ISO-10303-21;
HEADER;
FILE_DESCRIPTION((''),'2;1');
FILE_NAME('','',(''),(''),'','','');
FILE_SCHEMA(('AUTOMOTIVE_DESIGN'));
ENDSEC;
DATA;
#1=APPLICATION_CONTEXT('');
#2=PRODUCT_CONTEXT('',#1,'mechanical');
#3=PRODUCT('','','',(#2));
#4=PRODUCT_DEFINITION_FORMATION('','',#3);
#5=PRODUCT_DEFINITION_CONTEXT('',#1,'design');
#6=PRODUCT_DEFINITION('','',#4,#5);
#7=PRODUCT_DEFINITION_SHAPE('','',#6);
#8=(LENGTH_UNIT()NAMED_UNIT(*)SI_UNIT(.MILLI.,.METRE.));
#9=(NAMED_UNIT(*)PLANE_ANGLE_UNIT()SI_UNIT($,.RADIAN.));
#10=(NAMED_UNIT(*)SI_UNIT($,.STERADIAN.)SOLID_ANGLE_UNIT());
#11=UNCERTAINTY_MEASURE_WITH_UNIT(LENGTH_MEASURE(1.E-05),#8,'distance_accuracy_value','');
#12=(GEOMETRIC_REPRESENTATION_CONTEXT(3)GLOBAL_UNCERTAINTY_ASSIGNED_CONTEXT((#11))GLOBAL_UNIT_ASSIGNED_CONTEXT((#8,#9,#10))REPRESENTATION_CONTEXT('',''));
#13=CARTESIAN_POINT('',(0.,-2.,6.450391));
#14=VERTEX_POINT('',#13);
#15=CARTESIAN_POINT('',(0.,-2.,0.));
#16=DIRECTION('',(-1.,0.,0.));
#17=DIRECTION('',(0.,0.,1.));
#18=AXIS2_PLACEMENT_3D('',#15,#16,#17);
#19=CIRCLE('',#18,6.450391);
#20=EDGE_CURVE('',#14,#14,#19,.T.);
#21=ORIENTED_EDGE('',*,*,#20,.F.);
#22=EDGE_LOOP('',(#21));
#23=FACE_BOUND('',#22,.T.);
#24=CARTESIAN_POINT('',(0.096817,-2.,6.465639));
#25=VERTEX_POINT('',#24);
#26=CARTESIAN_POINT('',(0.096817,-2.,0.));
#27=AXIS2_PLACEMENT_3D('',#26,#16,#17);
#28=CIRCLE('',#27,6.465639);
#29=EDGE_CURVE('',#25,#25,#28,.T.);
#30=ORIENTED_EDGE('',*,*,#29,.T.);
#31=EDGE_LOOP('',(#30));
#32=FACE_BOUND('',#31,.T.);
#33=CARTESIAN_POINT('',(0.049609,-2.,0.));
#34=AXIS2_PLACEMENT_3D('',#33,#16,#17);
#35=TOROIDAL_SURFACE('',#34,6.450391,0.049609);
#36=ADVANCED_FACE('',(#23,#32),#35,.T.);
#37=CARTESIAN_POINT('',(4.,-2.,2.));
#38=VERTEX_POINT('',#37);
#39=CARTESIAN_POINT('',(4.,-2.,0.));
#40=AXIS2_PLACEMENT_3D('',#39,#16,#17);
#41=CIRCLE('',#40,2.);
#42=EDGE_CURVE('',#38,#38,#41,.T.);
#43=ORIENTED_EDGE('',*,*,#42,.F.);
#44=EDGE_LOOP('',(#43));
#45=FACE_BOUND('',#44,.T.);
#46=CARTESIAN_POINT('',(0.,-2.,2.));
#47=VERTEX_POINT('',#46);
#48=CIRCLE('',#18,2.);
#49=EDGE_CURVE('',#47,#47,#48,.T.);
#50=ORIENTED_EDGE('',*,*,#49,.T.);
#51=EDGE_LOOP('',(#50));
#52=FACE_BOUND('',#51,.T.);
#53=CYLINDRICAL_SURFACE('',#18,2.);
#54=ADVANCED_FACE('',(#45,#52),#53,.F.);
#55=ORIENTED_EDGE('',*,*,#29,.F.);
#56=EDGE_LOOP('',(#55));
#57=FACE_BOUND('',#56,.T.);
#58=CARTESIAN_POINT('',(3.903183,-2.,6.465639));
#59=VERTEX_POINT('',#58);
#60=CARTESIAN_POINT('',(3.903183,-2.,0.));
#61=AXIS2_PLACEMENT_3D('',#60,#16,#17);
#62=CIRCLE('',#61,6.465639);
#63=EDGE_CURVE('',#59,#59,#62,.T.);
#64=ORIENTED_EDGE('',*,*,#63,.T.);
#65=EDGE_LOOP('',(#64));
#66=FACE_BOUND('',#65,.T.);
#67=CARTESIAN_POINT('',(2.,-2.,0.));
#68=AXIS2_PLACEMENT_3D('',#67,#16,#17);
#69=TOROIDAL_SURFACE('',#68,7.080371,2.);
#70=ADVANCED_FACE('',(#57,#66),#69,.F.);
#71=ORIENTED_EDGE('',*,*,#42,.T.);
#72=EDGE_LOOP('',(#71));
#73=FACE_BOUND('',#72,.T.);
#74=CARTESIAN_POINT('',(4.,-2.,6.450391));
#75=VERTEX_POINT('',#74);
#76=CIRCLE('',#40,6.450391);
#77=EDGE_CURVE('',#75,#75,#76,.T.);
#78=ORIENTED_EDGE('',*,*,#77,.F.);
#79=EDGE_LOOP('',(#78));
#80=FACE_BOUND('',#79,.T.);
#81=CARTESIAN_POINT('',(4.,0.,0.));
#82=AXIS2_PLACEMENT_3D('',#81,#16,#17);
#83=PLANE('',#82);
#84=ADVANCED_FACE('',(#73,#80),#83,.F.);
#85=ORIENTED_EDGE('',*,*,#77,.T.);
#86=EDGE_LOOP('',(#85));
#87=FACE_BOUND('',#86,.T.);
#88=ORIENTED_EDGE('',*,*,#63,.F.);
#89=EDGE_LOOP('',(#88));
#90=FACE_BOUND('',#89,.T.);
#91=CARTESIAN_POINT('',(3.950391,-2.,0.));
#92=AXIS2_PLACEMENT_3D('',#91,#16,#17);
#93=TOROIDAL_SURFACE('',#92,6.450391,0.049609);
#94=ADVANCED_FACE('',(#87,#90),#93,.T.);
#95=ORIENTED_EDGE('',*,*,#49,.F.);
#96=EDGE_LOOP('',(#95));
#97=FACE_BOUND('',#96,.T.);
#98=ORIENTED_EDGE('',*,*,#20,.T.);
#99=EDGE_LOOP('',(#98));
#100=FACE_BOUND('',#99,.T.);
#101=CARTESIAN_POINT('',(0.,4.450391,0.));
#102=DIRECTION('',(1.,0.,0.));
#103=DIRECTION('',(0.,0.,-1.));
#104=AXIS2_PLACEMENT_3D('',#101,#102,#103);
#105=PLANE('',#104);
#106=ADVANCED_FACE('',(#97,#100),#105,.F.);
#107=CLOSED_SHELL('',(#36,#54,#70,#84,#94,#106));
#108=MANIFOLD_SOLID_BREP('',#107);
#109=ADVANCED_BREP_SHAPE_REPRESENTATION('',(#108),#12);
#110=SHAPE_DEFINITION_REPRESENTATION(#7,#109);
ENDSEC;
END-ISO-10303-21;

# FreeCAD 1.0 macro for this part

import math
import FreeCAD as App
import Part
import Sketcher
Q = App.Units.Quantity

doc = App.newDocument("Part")
body = doc.addObject("PartDesign::Body", "Body")

# Sketch on XY plane
sketch1 = body.newObject("Sketcher::SketchObject", "Sketch")
sketch1.AttachmentSupport = (doc.getObject("XY_Plane"), [""])
sketch1.MapMode = "FlatFace"
sketch1.addGeometry([
    Part.LineSegment(App.Vector(0, 0, 0), App.Vector(4, 0, 0)),  # 0
    Part.LineSegment(App.Vector(4, 0, 0), App.Vector(4, 4.45, 0)),  # 1
    Part.ArcOfCircle(Part.Circle(App.Vector(3.95, 4.45, 0), App.Vector(0, 0, 1), 0.05), math.radians(0), math.radians(162)),  # 2
    Part.ArcOfCircle(Part.Circle(App.Vector(2, 5.08, 0), App.Vector(0, 0, 1), 2), math.radians(-162), math.radians(-18)),  # 3
    Part.ArcOfCircle(Part.Circle(App.Vector(0.05, 4.45, 0), App.Vector(0, 0, 1), 0.05), math.radians(18), math.radians(180)),  # 4
    Part.LineSegment(App.Vector(0, 4.45, 0), App.Vector(0, 0, 0)),  # 5
], False)
sketch1.addGeometry(Part.LineSegment(App.Vector(0, -2, 0), App.Vector(4, -2, 0)), True)  # axis
sketch1.addConstraint([
    Sketcher.Constraint("Coincident", 0, 2, 1, 1),
    Sketcher.Constraint("Tangent", 1, 2, 2, 1),
    Sketcher.Constraint("Tangent", 2, 2, 3, 2),
    Sketcher.Constraint("Tangent", 3, 1, 4, 1),
    Sketcher.Constraint("Tangent", 4, 2, 5, 1),
    Sketcher.Constraint("Coincident", 5, 2, 0, 1),
    Sketcher.Constraint("Horizontal", 0),
    Sketcher.Constraint("Vertical", 1),
    Sketcher.Constraint("Vertical", 5),
    Sketcher.Constraint("Horizontal", 6),
    Sketcher.Constraint("Coincident", 5, 2, -1, 1),
    Sketcher.Constraint("Equal", 2, 4),
    Sketcher.Constraint("PointOnObject", 6, 1, -2),
    Sketcher.Constraint("Horizontal", 2, 3, 4, 3),
    Sketcher.Constraint("Vertical", 1, 2, 6, 2),
    Sketcher.Constraint("Radius", 3, Q("2 mm")),
    Sketcher.Constraint("DistanceX", 0, 1, 0, 2, Q("4 mm")),
    Sketcher.Constraint("DistanceY", 6, 1, -1, 1, Q("2 mm")),
    Sketcher.Constraint("Radius", 2, Q("0.049609 mm")),
    Sketcher.Constraint("DistanceY", 1, 1, 1, 2, Q("4.450391 mm")),
])
revolution = body.newObject("PartDesign::Revolution", "Revolution")
revolution.Profile = sketch1
revolution.ReferenceAxis = (sketch1, ["Axis0"])
revolution.Angle = 360

doc.recompute()
